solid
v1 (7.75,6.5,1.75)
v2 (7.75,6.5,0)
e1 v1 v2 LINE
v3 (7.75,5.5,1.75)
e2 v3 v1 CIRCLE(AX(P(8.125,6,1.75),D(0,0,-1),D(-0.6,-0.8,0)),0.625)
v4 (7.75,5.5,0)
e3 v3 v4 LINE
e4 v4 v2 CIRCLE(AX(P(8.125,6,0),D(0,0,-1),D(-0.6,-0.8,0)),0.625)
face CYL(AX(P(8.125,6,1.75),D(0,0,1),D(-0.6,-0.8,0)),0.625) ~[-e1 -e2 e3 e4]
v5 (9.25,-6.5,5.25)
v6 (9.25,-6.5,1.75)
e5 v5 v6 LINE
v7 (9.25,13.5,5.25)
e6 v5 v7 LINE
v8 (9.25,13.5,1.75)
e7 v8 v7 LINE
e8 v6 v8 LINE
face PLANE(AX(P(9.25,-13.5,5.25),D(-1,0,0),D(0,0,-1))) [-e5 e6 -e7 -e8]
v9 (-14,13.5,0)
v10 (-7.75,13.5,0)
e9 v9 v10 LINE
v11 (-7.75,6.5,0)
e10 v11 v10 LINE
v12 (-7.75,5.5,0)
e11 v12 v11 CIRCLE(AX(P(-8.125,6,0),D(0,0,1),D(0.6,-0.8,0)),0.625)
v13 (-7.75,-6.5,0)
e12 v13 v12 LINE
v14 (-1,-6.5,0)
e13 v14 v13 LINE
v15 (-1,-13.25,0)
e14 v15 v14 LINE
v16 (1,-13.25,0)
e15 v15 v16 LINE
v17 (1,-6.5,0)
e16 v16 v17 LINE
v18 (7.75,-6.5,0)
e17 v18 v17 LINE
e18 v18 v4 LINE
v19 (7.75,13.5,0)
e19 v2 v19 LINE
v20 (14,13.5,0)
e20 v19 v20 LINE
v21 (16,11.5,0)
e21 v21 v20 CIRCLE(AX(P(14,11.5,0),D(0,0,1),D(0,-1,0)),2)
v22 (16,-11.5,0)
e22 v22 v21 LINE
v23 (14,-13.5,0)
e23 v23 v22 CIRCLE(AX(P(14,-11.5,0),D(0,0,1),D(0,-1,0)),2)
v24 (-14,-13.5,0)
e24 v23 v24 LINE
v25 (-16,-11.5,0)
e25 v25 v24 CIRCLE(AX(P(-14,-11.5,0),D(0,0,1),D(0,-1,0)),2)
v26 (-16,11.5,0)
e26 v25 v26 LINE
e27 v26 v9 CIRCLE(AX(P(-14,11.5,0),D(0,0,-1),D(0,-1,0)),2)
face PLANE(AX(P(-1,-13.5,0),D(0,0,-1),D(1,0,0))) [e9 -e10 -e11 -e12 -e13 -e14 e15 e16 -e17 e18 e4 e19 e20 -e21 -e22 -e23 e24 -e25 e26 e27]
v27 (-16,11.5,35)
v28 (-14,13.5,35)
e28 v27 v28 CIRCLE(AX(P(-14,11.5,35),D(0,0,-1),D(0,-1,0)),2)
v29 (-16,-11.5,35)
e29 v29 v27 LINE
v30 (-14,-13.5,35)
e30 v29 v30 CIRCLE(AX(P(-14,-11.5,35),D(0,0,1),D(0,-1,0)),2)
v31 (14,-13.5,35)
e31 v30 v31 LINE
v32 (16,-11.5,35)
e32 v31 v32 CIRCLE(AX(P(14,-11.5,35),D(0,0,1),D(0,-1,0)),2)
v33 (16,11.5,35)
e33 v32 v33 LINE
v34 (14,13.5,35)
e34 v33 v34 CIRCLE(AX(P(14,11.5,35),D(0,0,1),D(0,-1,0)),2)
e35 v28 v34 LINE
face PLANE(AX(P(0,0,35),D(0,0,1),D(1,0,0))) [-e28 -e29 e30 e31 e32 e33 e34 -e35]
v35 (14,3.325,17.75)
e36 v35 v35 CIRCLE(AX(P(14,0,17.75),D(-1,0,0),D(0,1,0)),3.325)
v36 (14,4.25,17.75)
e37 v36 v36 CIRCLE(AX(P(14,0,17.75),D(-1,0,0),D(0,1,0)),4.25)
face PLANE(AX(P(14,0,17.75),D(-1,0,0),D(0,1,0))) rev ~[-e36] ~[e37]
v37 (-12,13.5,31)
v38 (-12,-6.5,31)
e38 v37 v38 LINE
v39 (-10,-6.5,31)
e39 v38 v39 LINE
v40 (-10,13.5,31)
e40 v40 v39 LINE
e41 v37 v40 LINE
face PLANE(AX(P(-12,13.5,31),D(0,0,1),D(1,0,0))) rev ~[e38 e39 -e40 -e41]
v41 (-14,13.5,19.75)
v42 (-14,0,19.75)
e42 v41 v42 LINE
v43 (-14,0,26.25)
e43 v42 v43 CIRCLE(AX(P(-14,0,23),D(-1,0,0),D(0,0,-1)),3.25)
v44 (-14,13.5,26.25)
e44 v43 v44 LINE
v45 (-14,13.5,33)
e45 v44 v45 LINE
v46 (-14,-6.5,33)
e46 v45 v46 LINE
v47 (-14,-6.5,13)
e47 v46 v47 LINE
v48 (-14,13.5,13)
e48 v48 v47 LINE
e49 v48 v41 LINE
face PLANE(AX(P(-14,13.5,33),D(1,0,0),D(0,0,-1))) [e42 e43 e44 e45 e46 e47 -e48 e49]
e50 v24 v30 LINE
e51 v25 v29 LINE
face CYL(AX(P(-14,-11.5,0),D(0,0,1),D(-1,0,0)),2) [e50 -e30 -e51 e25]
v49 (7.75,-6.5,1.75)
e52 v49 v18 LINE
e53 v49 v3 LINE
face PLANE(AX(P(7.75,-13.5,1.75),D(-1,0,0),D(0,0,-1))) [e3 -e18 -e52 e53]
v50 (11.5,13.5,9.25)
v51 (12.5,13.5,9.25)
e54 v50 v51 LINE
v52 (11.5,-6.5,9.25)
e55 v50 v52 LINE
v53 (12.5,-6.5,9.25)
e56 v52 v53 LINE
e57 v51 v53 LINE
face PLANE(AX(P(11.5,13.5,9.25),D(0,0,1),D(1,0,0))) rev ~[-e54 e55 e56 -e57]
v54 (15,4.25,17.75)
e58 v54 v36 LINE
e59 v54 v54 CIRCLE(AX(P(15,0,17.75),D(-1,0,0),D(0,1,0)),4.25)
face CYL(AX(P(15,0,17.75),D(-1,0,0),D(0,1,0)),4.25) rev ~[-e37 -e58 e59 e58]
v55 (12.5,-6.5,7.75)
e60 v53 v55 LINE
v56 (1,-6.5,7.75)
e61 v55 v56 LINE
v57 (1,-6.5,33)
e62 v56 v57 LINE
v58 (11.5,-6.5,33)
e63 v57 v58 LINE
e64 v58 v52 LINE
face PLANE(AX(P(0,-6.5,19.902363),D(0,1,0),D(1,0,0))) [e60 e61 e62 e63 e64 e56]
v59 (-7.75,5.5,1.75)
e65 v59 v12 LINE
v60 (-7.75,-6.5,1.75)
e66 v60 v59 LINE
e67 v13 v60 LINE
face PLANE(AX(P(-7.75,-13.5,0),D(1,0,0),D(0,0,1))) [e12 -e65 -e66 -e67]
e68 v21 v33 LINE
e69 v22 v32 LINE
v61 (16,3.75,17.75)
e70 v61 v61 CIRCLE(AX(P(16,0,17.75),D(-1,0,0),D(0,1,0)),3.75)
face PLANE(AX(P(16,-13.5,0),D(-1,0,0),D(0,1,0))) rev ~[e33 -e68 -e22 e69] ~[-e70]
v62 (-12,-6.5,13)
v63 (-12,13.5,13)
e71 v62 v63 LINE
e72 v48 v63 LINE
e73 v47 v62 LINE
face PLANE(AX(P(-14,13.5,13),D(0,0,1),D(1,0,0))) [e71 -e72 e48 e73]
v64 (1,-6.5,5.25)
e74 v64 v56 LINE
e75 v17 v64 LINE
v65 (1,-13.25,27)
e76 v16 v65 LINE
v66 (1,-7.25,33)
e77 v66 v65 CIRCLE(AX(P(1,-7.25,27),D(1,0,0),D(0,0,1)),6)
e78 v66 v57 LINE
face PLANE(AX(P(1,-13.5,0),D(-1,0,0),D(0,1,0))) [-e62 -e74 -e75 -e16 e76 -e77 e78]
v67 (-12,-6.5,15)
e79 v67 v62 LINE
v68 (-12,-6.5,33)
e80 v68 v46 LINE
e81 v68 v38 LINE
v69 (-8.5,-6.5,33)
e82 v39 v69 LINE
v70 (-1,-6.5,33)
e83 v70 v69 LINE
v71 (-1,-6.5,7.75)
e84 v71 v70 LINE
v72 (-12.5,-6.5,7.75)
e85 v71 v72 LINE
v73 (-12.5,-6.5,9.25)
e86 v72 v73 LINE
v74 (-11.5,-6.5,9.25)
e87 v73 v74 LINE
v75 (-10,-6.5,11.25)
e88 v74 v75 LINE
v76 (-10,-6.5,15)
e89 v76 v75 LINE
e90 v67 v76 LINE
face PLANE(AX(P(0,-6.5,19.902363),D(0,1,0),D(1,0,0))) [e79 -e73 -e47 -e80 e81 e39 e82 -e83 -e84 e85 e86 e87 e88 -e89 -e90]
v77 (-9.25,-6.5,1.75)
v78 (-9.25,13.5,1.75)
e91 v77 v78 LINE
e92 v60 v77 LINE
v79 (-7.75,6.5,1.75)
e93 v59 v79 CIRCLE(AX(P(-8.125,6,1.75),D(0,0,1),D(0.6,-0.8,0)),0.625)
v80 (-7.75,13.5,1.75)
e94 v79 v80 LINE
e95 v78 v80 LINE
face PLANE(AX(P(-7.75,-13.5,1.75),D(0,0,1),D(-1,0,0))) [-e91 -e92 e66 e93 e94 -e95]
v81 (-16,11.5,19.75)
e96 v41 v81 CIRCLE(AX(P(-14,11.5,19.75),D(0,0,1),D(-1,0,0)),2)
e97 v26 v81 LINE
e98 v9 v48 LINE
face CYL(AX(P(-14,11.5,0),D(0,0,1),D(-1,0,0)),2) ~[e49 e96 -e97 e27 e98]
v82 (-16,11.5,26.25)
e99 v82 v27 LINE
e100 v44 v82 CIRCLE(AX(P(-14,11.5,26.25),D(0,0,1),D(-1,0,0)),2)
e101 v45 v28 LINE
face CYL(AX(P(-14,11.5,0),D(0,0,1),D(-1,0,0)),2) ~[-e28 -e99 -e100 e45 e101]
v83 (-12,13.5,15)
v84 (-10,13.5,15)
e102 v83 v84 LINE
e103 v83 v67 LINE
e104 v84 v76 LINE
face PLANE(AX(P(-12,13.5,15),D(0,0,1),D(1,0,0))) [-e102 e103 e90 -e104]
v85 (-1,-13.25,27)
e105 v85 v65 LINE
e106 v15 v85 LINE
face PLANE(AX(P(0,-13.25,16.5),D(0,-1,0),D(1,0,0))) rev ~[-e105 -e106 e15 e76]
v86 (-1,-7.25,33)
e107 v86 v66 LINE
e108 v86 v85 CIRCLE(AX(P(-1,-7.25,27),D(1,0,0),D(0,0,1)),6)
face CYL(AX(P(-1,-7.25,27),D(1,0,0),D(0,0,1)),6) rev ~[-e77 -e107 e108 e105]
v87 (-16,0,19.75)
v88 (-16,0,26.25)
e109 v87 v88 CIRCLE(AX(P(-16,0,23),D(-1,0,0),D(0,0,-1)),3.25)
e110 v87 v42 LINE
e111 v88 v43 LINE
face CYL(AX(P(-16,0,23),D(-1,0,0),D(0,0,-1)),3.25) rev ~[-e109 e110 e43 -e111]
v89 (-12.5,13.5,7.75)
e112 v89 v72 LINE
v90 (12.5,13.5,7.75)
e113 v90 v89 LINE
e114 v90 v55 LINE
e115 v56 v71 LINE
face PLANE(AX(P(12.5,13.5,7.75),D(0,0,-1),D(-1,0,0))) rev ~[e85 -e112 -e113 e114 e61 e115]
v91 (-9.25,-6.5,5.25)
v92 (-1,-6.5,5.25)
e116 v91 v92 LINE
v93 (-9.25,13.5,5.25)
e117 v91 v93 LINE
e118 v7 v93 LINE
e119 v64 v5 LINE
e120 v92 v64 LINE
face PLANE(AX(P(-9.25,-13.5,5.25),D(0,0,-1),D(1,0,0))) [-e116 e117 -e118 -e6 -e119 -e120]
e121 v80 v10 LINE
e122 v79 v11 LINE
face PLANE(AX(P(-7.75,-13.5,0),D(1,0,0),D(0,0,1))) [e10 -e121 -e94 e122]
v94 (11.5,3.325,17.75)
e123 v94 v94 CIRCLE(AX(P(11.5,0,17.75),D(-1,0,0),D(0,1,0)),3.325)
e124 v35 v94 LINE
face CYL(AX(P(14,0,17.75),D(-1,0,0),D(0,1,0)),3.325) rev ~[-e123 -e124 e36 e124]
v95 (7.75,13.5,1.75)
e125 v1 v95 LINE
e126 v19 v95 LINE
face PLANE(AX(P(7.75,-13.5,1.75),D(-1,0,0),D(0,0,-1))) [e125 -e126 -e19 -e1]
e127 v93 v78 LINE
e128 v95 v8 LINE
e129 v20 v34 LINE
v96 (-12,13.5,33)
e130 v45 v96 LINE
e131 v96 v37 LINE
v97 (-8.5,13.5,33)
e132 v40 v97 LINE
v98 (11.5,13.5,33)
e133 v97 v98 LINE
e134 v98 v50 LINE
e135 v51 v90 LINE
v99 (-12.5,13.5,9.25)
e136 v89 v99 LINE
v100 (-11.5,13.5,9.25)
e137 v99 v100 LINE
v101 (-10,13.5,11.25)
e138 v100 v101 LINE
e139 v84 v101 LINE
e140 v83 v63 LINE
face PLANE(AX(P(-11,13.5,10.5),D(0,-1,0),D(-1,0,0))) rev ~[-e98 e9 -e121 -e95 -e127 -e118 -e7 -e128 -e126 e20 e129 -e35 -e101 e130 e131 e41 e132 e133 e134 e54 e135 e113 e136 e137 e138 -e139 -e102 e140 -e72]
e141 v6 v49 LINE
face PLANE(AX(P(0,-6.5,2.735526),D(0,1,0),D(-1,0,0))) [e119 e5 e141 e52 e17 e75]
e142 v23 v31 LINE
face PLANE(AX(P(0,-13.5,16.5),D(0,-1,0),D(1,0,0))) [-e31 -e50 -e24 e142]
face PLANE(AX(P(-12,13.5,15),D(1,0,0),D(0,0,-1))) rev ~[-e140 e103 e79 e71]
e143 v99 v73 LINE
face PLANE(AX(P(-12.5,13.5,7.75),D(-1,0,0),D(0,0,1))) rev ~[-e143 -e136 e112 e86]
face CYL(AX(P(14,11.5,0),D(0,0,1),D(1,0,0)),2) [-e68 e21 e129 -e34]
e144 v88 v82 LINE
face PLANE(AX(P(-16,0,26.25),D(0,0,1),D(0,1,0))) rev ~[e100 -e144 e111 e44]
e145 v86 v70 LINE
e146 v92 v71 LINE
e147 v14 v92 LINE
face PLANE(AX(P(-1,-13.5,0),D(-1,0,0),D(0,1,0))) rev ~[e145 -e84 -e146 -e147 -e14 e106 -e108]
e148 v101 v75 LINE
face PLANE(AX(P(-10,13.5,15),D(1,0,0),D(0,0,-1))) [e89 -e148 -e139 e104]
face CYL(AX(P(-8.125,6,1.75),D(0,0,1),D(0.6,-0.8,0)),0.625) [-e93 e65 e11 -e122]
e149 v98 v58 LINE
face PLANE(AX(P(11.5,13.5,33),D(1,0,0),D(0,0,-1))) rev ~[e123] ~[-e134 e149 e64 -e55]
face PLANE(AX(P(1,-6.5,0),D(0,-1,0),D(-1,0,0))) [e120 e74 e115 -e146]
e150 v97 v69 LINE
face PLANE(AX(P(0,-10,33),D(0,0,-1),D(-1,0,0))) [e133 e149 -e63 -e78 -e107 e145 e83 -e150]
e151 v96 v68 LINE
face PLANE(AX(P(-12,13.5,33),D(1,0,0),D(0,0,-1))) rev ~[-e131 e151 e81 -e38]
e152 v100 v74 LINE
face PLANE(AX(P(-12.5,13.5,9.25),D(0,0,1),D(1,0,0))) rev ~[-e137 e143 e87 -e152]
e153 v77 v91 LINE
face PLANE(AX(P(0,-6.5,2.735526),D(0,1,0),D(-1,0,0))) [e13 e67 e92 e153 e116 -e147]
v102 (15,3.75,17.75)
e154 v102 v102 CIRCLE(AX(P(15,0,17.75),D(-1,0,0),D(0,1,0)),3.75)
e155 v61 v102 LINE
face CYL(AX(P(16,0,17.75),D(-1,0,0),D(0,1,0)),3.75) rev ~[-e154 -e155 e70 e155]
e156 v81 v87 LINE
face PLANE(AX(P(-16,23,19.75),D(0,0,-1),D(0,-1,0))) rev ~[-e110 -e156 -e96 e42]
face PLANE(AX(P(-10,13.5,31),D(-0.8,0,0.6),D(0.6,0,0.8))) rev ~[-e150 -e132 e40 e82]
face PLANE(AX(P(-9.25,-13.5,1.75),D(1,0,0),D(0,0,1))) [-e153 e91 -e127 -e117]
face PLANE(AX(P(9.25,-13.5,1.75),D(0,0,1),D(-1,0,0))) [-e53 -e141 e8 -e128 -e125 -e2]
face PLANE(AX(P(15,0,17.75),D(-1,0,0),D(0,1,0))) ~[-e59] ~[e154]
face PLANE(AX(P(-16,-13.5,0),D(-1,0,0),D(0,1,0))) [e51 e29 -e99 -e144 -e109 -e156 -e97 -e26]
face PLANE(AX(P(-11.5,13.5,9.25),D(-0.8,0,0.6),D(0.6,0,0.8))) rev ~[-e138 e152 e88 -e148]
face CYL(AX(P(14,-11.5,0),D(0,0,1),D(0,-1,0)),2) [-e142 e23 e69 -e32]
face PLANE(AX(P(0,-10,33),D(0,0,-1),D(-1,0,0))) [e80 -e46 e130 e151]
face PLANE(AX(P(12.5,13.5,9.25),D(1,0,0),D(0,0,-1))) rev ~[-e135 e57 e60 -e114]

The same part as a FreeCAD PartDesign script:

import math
import FreeCAD as App
import Part
import Sketcher


def edges_at(feature, points):
    """Names of the edges that pass closest to the given points."""
    edges = feature.Shape.Edges
    near = lambda p: min(range(len(edges)), key=lambda i: edges[i].distToShape(Part.Vertex(*p))[0])
    return sorted({f"Edge{near(p) + 1}" for p in points})

doc = App.newDocument("Part")
params = doc.addObject("Spreadsheet::Sheet", "Params")
for row, (alias, value) in enumerate([
    ("sketch1_width", "32 mm"),
    ("sketch1_height", "27 mm"),
    ("pad1_length", "35 mm"),
    ("fillet_radius", "2 mm"),
    ("sketch2_width", "15.5 mm"),
    ("sketch2_width2", "1.5 mm"),
    ("sketch2_height", "3.5 mm"),
    ("sketch2_height2", "1.75 mm"),
    ("sketch3_width", "15.5 mm"),
    ("sketch3_width2", "1.5 mm"),
    ("sketch3_height", "3.5 mm"),
    ("sketch3_height2", "1.75 mm"),
    ("pad2_length", "7 mm"),
    ("sketch4_height", "1 mm"),
    ("pad3_length", "1.75 mm"),
    ("sketch5_width", "2 mm"),
    ("sketch5_height", "7 mm"),
    ("pocket2_length", "33 mm"),
    ("sketch6_width", "1 mm"),
    ("sketch6_width2", "23 mm"),
    ("sketch6_height", "1.5 mm"),
    ("sketch6_height2", "23.75 mm"),
    ("pocket3_length", "20 mm"),
    ("sketch7_width", "2 mm"),
    ("sketch7_height", "33 mm"),
    ("pad4_length", "0.25 mm"),
    ("fillet2_radius", "6 mm"),
    ("sketch8_width", "1 mm"),
    ("sketch8_width2", "4.5 mm"),
    ("sketch8_height", "0.5 mm"),
    ("sketch8_height2", "3.75 mm"),
    ("groove_angle", "360 deg"),
    ("sketch9_width", "23 mm"),
    ("sketch9_radius", "3.25 mm"),
    ("pocket4_length", "4.5 mm"),
    ("sketch10_height", "20 mm"),
    ("sketch10_width", "2.5 mm"),
    ("pocket5_length", "20 mm"),
    ("sketch11_width", "2 mm"),
    ("sketch11_height", "3.75 mm"),
    ("pad5_length", "20 mm"),
    ("sketch12_height", "2 mm"),
    ("sketch12_width", "1.5 mm"),
    ("pad6_length", "20 mm"),
], start=1):
    params.set(f"A{row}", alias)
    params.set(f"B{row}", "=" + value)
    params.setAlias(f"B{row}", alias)

body = doc.addObject("PartDesign::Body", "Body")

# Sketch on XY plane
sketch1 = body.newObject("Sketcher::SketchObject", "Sketch")
sketch1.AttachmentSupport = (doc.getObject("XY_Plane"), [""])
sketch1.MapMode = "FlatFace"
sketch1.addGeometry([
    Part.LineSegment(App.Vector(-16, 14, 0), App.Vector(-16, -14, 0)),
    Part.LineSegment(App.Vector(-16, -14, 0), App.Vector(16, -14, 0)),
    Part.LineSegment(App.Vector(16, -14, 0), App.Vector(16, 14, 0)),
    Part.LineSegment(App.Vector(16, 14, 0), App.Vector(-16, 14, 0)),
], False)
sketch1.addConstraint([
    Sketcher.Constraint("Coincident", 0, 2, 1, 1),
    Sketcher.Constraint("Coincident", 1, 2, 2, 1),
    Sketcher.Constraint("Coincident", 2, 2, 3, 1),
    Sketcher.Constraint("Coincident", 3, 2, 0, 1),
    Sketcher.Constraint("Vertical", 0),
    Sketcher.Constraint("Horizontal", 1),
    Sketcher.Constraint("Vertical", 2),
    Sketcher.Constraint("Horizontal", 3),
    Sketcher.Constraint("Symmetric", 0, 2, 2, 2, -1, 1),
    Sketcher.Constraint("DistanceX", 1, 1, 1, 2, 32.0),
    Sketcher.Constraint("DistanceY", 0, 2, 0, 1, 27.0),
])
sketch1.setExpression("Constraints[9]", "Params.sketch1_width")
sketch1.setExpression("Constraints[10]", "Params.sketch1_height")
pad1 = body.newObject("PartDesign::Pad", "Pad")
pad1.Profile = sketch1
pad1.setExpression("Length", "Params.pad1_length")
doc.recompute()

fillet = body.newObject("PartDesign::Fillet", "Fillet")
fillet.Base = (pad1, edges_at(pad1, [
    (16, -13.5, 17.5),
    (-16, -13.5, 17.5),
    (-16, 13.5, 17.5),
    (16, 13.5, 17.5),
]))
fillet.setExpression("Radius", "Params.fillet_radius")

# Sketch on XZ plane
sketch2 = body.newObject("Sketcher::SketchObject", "Sketch001")
sketch2.AttachmentSupport = (doc.getObject("XZ_Plane"), [""])
sketch2.MapMode = "FlatFace"
sketch2.AttachmentOffset = App.Placement(App.Vector(0, 0, 13.5), App.Rotation())
sketch2.addGeometry([
    Part.LineSegment(App.Vector(-7.8, 1.8, 0), App.Vector(-7.8, 0, 0)),  # 0
    Part.LineSegment(App.Vector(-7.8, 0, 0), App.Vector(7.8, 0, 0)),  # 1
    Part.LineSegment(App.Vector(7.8, 0, 0), App.Vector(7.8, 1.8, 0)),  # 2
    Part.LineSegment(App.Vector(7.8, 1.8, 0), App.Vector(9.2, 1.8, 0)),  # 3
    Part.LineSegment(App.Vector(9.2, 1.8, 0), App.Vector(9.2, 5.2, 0)),  # 4
    Part.LineSegment(App.Vector(9.2, 5.2, 0), App.Vector(-9.2, 5.2, 0)),  # 5
    Part.LineSegment(App.Vector(-9.2, 5.2, 0), App.Vector(-9.2, 1.8, 0)),  # 6
    Part.LineSegment(App.Vector(-9.2, 1.8, 0), App.Vector(-7.8, 1.8, 0)),  # 7
], False)
sketch2.addConstraint([
    Sketcher.Constraint("Coincident", 0, 2, 1, 1),
    Sketcher.Constraint("Coincident", 1, 2, 2, 1),
    Sketcher.Constraint("Coincident", 2, 2, 3, 1),
    Sketcher.Constraint("Coincident", 3, 2, 4, 1),
    Sketcher.Constraint("Coincident", 4, 2, 5, 1),
    Sketcher.Constraint("Coincident", 5, 2, 6, 1),
    Sketcher.Constraint("Coincident", 6, 2, 7, 1),
    Sketcher.Constraint("Coincident", 7, 2, 0, 1),
    Sketcher.Constraint("Vertical", 0),
    Sketcher.Constraint("Horizontal", 1),
    Sketcher.Constraint("Vertical", 2),
    Sketcher.Constraint("Horizontal", 3),
    Sketcher.Constraint("Vertical", 4),
    Sketcher.Constraint("Horizontal", 5),
    Sketcher.Constraint("Vertical", 6),
    Sketcher.Constraint("Horizontal", 7),
    Sketcher.Constraint("Symmetric", 0, 2, 1, 2, -1, 1),
    Sketcher.Constraint("Symmetric", 3, 2, 6, 2, -2),
    Sketcher.Constraint("DistanceX", 1, 1, 1, 2, 15.5),
    Sketcher.Constraint("DistanceX", 3, 1, 3, 2, 1.5),
    Sketcher.Constraint("DistanceY", 4, 1, 4, 2, 3.5),
    Sketcher.Constraint("DistanceY", 0, 2, 0, 1, 1.75),
])
sketch2.setExpression("Constraints[18]", "Params.sketch2_width")
sketch2.setExpression("Constraints[19]", "Params.sketch2_width2")
sketch2.setExpression("Constraints[20]", "Params.sketch2_height")
sketch2.setExpression("Constraints[21]", "Params.sketch2_height2")
pocket1 = body.newObject("PartDesign::Pocket", "Pocket")
pocket1.Profile = sketch2
pocket1.Type = "ThroughAll"
pocket1.Midplane = True

# Sketch on XZ plane
sketch3 = body.newObject("Sketcher::SketchObject", "Sketch002")
sketch3.AttachmentSupport = (doc.getObject("XZ_Plane"), [""])
sketch3.MapMode = "FlatFace"
sketch3.AttachmentOffset = App.Placement(App.Vector(0, 0, 13.5), App.Rotation())
sketch3.addGeometry([
    Part.LineSegment(App.Vector(-7.8, 1.8, 0), App.Vector(-7.8, 0, 0)),  # 0
    Part.LineSegment(App.Vector(-7.8, 0, 0), App.Vector(7.8, 0, 0)),  # 1
    Part.LineSegment(App.Vector(7.8, 0, 0), App.Vector(7.8, 1.8, 0)),  # 2
    Part.LineSegment(App.Vector(7.8, 1.8, 0), App.Vector(9.2, 1.8, 0)),  # 3
    Part.LineSegment(App.Vector(9.2, 1.8, 0), App.Vector(9.2, 5.2, 0)),  # 4
    Part.LineSegment(App.Vector(9.2, 5.2, 0), App.Vector(-9.2, 5.2, 0)),  # 5
    Part.LineSegment(App.Vector(-9.2, 5.2, 0), App.Vector(-9.2, 1.8, 0)),  # 6
    Part.LineSegment(App.Vector(-9.2, 1.8, 0), App.Vector(-7.8, 1.8, 0)),  # 7
], False)
sketch3.addConstraint([
    Sketcher.Constraint("Coincident", 0, 2, 1, 1),
    Sketcher.Constraint("Coincident", 1, 2, 2, 1),
    Sketcher.Constraint("Coincident", 2, 2, 3, 1),
    Sketcher.Constraint("Coincident", 3, 2, 4, 1),
    Sketcher.Constraint("Coincident", 4, 2, 5, 1),
    Sketcher.Constraint("Coincident", 5, 2, 6, 1),
    Sketcher.Constraint("Coincident", 6, 2, 7, 1),
    Sketcher.Constraint("Coincident", 7, 2, 0, 1),
    Sketcher.Constraint("Vertical", 0),
    Sketcher.Constraint("Horizontal", 1),
    Sketcher.Constraint("Vertical", 2),
    Sketcher.Constraint("Horizontal", 3),
    Sketcher.Constraint("Vertical", 4),
    Sketcher.Constraint("Horizontal", 5),
    Sketcher.Constraint("Vertical", 6),
    Sketcher.Constraint("Horizontal", 7),
    Sketcher.Constraint("Symmetric", 0, 2, 1, 2, -1, 1),
    Sketcher.Constraint("Symmetric", 3, 2, 6, 2, -2),
    Sketcher.Constraint("DistanceX", 1, 1, 1, 2, 15.5),
    Sketcher.Constraint("DistanceX", 3, 1, 3, 2, 1.5),
    Sketcher.Constraint("DistanceY", 4, 1, 4, 2, 3.5),
    Sketcher.Constraint("DistanceY", 0, 2, 0, 1, 1.75),
])
sketch3.setExpression("Constraints[18]", "Params.sketch3_width")
sketch3.setExpression("Constraints[19]", "Params.sketch3_width2")
sketch3.setExpression("Constraints[20]", "Params.sketch3_height")
sketch3.setExpression("Constraints[21]", "Params.sketch3_height2")
pad2 = body.newObject("PartDesign::Pad", "Pad001")
pad2.Profile = sketch3
pad2.setExpression("Length", "Params.pad2_length")
pad2.Reversed = True

# Sketch on XY plane
sketch4 = body.newObject("Sketcher::SketchObject", "Sketch003")
sketch4.AttachmentSupport = (doc.getObject("XY_Plane"), [""])
sketch4.MapMode = "FlatFace"
sketch4.AttachmentOffset = App.Placement(App.Vector(0, 0, 1.75), App.Rotation())
sketch4.addGeometry([
    Part.LineSegment(App.Vector(7.8, 6.5, 0), App.Vector(7.8, 5.5, 0)),
    Part.ArcOfCircle(Part.Circle(App.Vector(8.1, 6, 0), App.Vector(0, 0, 1), 0.6), math.radians(127), math.radians(233)),
], False)
sketch4.addConstraint([
    Sketcher.Constraint("Coincident", 0, 1, 1, 1),
    Sketcher.Constraint("Coincident", 1, 2, 0, 2),
    Sketcher.Constraint("Vertical", 0),
    Sketcher.Constraint("DistanceY", 0, 2, 0, 1, 1.0),
    Sketcher.Constraint("DistanceY", -1, 1, 1, 3, 6.0),
    Sketcher.Constraint("Radius", 1, 0.625),
    Sketcher.Constraint("DistanceX", -1, 1, 0, 1, 7.75),
])
sketch4.setExpression("Constraints[3]", "Params.sketch4_height")
pad3 = body.newObject("PartDesign::Pad", "Pad002")
pad3.Profile = sketch4
pad3.setExpression("Length", "Params.pad3_length")
pad3.Reversed = True
doc.recompute()

mirrored = body.newObject("PartDesign::Mirrored", "Mirrored")
mirrored.Originals = [pad3]
mirrored.MirrorPlane = (doc.getObject("YZ_Plane"), [""])
body.Tip = mirrored

# Sketch on XY plane
sketch5 = body.newObject("Sketcher::SketchObject", "Sketch004")
sketch5.AttachmentSupport = (doc.getObject("XY_Plane"), [""])
sketch5.MapMode = "FlatFace"
sketch5.addGeometry([
    Part.LineSegment(App.Vector(1, -6.5, 0), App.Vector(1, -13.5, 0)),
    Part.LineSegment(App.Vector(1, -13.5, 0), App.Vector(-1, -13.5, 0)),
    Part.LineSegment(App.Vector(-1, -13.5, 0), App.Vector(-1, -6.5, 0)),
    Part.LineSegment(App.Vector(-1, -6.5, 0), App.Vector(1, -6.5, 0)),
], False)
sketch5.addConstraint([
    Sketcher.Constraint("Coincident", 0, 2, 1, 1),
    Sketcher.Constraint("Coincident", 1, 2, 2, 1),
    Sketcher.Constraint("Coincident", 2, 2, 3, 1),
    Sketcher.Constraint("Coincident", 3, 2, 0, 1),
    Sketcher.Constraint("Vertical", 0),
    Sketcher.Constraint("Horizontal", 1),
    Sketcher.Constraint("Vertical", 2),
    Sketcher.Constraint("Horizontal", 3),
    Sketcher.Constraint("DistanceX", 1, 2, 1, 1, 2.0),
    Sketcher.Constraint("DistanceY", 0, 2, 0, 1, 7.0),
    Sketcher.Constraint("DistanceX", -1, 1, 0, 2, 1.0),
    Sketcher.Constraint("DistanceY", 0, 2, -1, 1, 13.5),
])
sketch5.setExpression("Constraints[8]", "Params.sketch5_width")
sketch5.setExpression("Constraints[9]", "Params.sketch5_height")
pocket2 = body.newObject("PartDesign::Pocket", "Pocket001")
pocket2.Profile = sketch5
pocket2.setExpression("Length", "Params.pocket2_length")
pocket2.Reversed = True

# Sketch on XZ plane
sketch6 = body.newObject("Sketcher::SketchObject", "Sketch005")
sketch6.AttachmentSupport = (doc.getObject("XZ_Plane"), [""])
sketch6.MapMode = "FlatFace"
sketch6.AttachmentOffset = App.Placement(App.Vector(0, 0, -13.5), App.Rotation())
sketch6.addGeometry([
    Part.LineSegment(App.Vector(-12.5, 7.8, 0), App.Vector(-12.5, 9.2, 0)),  # 0
    Part.LineSegment(App.Vector(-12.5, 9.2, 0), App.Vector(-11.5, 9.2, 0)),  # 1
    Part.LineSegment(App.Vector(-11.5, 9.2, 0), App.Vector(-11.5, 33, 0)),  # 2
    Part.LineSegment(App.Vector(-11.5, 33, 0), App.Vector(11.5, 33, 0)),  # 3
    Part.LineSegment(App.Vector(11.5, 33, 0), App.Vector(11.5, 9.2, 0)),  # 4
    Part.LineSegment(App.Vector(11.5, 9.2, 0), App.Vector(12.5, 9.2, 0)),  # 5
    Part.LineSegment(App.Vector(12.5, 9.2, 0), App.Vector(12.5, 7.8, 0)),  # 6
    Part.LineSegment(App.Vector(12.5, 7.8, 0), App.Vector(-12.5, 7.8, 0)),  # 7
], False)
sketch6.addConstraint([
    Sketcher.Constraint("Coincident", 0, 2, 1, 1),
    Sketcher.Constraint("Coincident", 1, 2, 2, 1),
    Sketcher.Constraint("Coincident", 2, 2, 3, 1),
    Sketcher.Constraint("Coincident", 3, 2, 4, 1),
    Sketcher.Constraint("Coincident", 4, 2, 5, 1),
    Sketcher.Constraint("Coincident", 5, 2, 6, 1),
    Sketcher.Constraint("Coincident", 6, 2, 7, 1),
    Sketcher.Constraint("Coincident", 7, 2, 0, 1),
    Sketcher.Constraint("Vertical", 0),
    Sketcher.Constraint("Horizontal", 1),
    Sketcher.Constraint("Vertical", 2),
    Sketcher.Constraint("Horizontal", 3),
    Sketcher.Constraint("Vertical", 4),
    Sketcher.Constraint("Horizontal", 5),
    Sketcher.Constraint("Vertical", 6),
    Sketcher.Constraint("Horizontal", 7),
    Sketcher.Constraint("Symmetric", 1, 2, 4, 2, -2),
    Sketcher.Constraint("Equal", 1, 5),
    Sketcher.Constraint("DistanceX", 1, 1, 1, 2, 1.0),
    Sketcher.Constraint("DistanceX", 3, 1, 3, 2, 23.0),
    Sketcher.Constraint("DistanceY", 0, 1, 0, 2, 1.5),
    Sketcher.Constraint("DistanceY", -1, 1, 2, 2, 33.0),
    Sketcher.Constraint("DistanceY", 2, 1, 2, 2, 23.75),
])
sketch6.setExpression("Constraints[18]", "Params.sketch6_width")
sketch6.setExpression("Constraints[19]", "Params.sketch6_width2")
sketch6.setExpression("Constraints[20]", "Params.sketch6_height")
sketch6.setExpression("Constraints[22]", "Params.sketch6_height2")
pocket3 = body.newObject("PartDesign::Pocket", "Pocket002")
pocket3.Profile = sketch6
pocket3.setExpression("Length", "Params.pocket3_length")
pocket3.Reversed = True

# Sketch on XZ plane
sketch7 = body.newObject("Sketcher::SketchObject", "Sketch006")
sketch7.AttachmentSupport = (doc.getObject("XZ_Plane"), [""])
sketch7.MapMode = "FlatFace"
sketch7.AttachmentOffset = App.Placement(App.Vector(0, 0, 13.5), App.Rotation())
sketch7.addGeometry([
    Part.LineSegment(App.Vector(-1, 33, 0), App.Vector(-1, 0, 0)),
    Part.LineSegment(App.Vector(-1, 0, 0), App.Vector(1, 0, 0)),
    Part.LineSegment(App.Vector(1, 0, 0), App.Vector(1, 33, 0)),
    Part.LineSegment(App.Vector(1, 33, 0), App.Vector(-1, 33, 0)),
], False)
sketch7.addConstraint([
    Sketcher.Constraint("Coincident", 0, 2, 1, 1),
    Sketcher.Constraint("Coincident", 1, 2, 2, 1),
    Sketcher.Constraint("Coincident", 2, 2, 3, 1),
    Sketcher.Constraint("Coincident", 3, 2, 0, 1),
    Sketcher.Constraint("Vertical", 0),
    Sketcher.Constraint("Horizontal", 1),
    Sketcher.Constraint("Vertical", 2),
    Sketcher.Constraint("Horizontal", 3),
    Sketcher.Constraint("Symmetric", 0, 2, 1, 2, -1, 1),
    Sketcher.Constraint("DistanceX", 1, 1, 1, 2, 2.0),
    Sketcher.Constraint("DistanceY", 0, 2, 0, 1, 33.0),
])
sketch7.setExpression("Constraints[9]", "Params.sketch7_width")
sketch7.setExpression("Constraints[10]", "Params.sketch7_height")
pad4 = body.newObject("PartDesign::Pad", "Pad003")
pad4.Profile = sketch7
pad4.setExpression("Length", "Params.pad4_length")
pad4.Reversed = True
doc.recompute()

fillet2 = body.newObject("PartDesign::Fillet", "Fillet001")
fillet2.Base = (pad4, edges_at(pad4, [(0, -13.25, 33)]))
fillet2.setExpression("Radius", "Params.fillet2_radius")

# Sketch on XY plane
sketch8 = body.newObject("Sketcher::SketchObject", "Sketch007")
sketch8.AttachmentSupport = (doc.getObject("XY_Plane"), [""])
sketch8.MapMode = "FlatFace"
sketch8.AttachmentOffset = App.Placement(App.Vector(0, 0, 17.75), App.Rotation())
sketch8.addGeometry([
    Part.LineSegment(App.Vector(14, 4.2, 0), App.Vector(15, 4.2, 0)),  # 0
    Part.LineSegment(App.Vector(15, 4.2, 0), App.Vector(15, 3.8, 0)),  # 1
    Part.LineSegment(App.Vector(15, 3.8, 0), App.Vector(16, 3.8, 0)),  # 2
    Part.LineSegment(App.Vector(16, 3.8, 0), App.Vector(16, 0, 0)),  # 3
    Part.LineSegment(App.Vector(16, 0, 0), App.Vector(11.5, 0, 0)),  # 4
    Part.LineSegment(App.Vector(11.5, 0, 0), App.Vector(11.5, 3.3, 0)),  # 5
    Part.LineSegment(App.Vector(11.5, 3.3, 0), App.Vector(14, 3.3, 0)),  # 6
    Part.LineSegment(App.Vector(14, 3.3, 0), App.Vector(14, 4.2, 0)),  # 7
], False)
sketch8.addConstraint([
    Sketcher.Constraint("Coincident", 0, 2, 1, 1),
    Sketcher.Constraint("Coincident", 1, 2, 2, 1),
    Sketcher.Constraint("Coincident", 2, 2, 3, 1),
    Sketcher.Constraint("Coincident", 3, 2, 4, 1),
    Sketcher.Constraint("Coincident", 4, 2, 5, 1),
    Sketcher.Constraint("Coincident", 5, 2, 6, 1),
    Sketcher.Constraint("Coincident", 6, 2, 7, 1),
    Sketcher.Constraint("Coincident", 7, 2, 0, 1),
    Sketcher.Constraint("Horizontal", 0),
    Sketcher.Constraint("Vertical", 1),
    Sketcher.Constraint("Horizontal", 2),
    Sketcher.Constraint("Vertical", 3),
    Sketcher.Constraint("Horizontal", 4),
    Sketcher.Constraint("Vertical", 5),
    Sketcher.Constraint("Horizontal", 6),
    Sketcher.Constraint("Vertical", 7),
    Sketcher.Constraint("PointOnObject", 3, 2, -1),
    Sketcher.Constraint("Equal", 0, 2),
    Sketcher.Constraint("DistanceX", 0, 1, 0, 2, 1.0),
    Sketcher.Constraint("DistanceX", 4, 2, 4, 1, 4.5),
    Sketcher.Constraint("DistanceY", 1, 2, 1, 1, 0.5),
    Sketcher.Constraint("DistanceX", -1, 1, 0, 2, 15.0),
    Sketcher.Constraint("DistanceY", 3, 2, 3, 1, 3.75),
    Sketcher.Constraint("DistanceY", 5, 1, 5, 2, 3.325),
])
sketch8.setExpression("Constraints[18]", "Params.sketch8_width")
sketch8.setExpression("Constraints[19]", "Params.sketch8_width2")
sketch8.setExpression("Constraints[20]", "Params.sketch8_height")
sketch8.setExpression("Constraints[22]", "Params.sketch8_height2")
groove = body.newObject("PartDesign::Groove", "Groove")
groove.Profile = sketch8
groove.ReferenceAxis = (sketch8, ["H_Axis"])
groove.setExpression("Angle", "Params.groove_angle")

# Sketch on YZ plane
sketch9 = body.newObject("Sketcher::SketchObject", "Sketch008")
sketch9.AttachmentSupport = (doc.getObject("YZ_Plane"), [""])
sketch9.MapMode = "FlatFace"
sketch9.AttachmentOffset = App.Placement(App.Vector(0, 0, -16), App.Rotation())
sketch9.addGeometry([
    Part.LineSegment(App.Vector(0, 19.8, 0), App.Vector(23, 19.8, 0)),
    Part.ArcOfCircle(Part.Circle(App.Vector(23, 23, 0), App.Vector(0, 0, 1), 3.2), math.radians(-90), math.radians(90)),
    Part.LineSegment(App.Vector(23, 26.2, 0), App.Vector(0, 26.2, 0)),
    Part.ArcOfCircle(Part.Circle(App.Vector(0, 23, 0), App.Vector(0, 0, 1), 3.2), math.radians(90), math.radians(270)),
], False)
sketch9.addConstraint([
    Sketcher.Constraint("Tangent", 0, 2, 1, 1),
    Sketcher.Constraint("Tangent", 1, 2, 2, 1),
    Sketcher.Constraint("Tangent", 2, 2, 3, 1),
    Sketcher.Constraint("Tangent", 3, 2, 0, 1),
    Sketcher.Constraint("Horizontal", 0),
    Sketcher.Constraint("Horizontal", 2),
    Sketcher.Constraint("PointOnObject", 3, 3, -2),
    Sketcher.Constraint("DistanceX", 0, 1, 0, 2, 23.0),
    Sketcher.Constraint("Radius", 1, 3.25),
    Sketcher.Constraint("DistanceY", -1, 1, 1, 3, 23.0),
])
sketch9.setExpression("Constraints[7]", "Params.sketch9_width")
sketch9.setExpression("Constraints[8]", "Params.sketch9_radius")
pocket4 = body.newObject("PartDesign::Pocket", "Pocket003")
pocket4.Profile = sketch9
pocket4.setExpression("Length", "Params.pocket4_length")
pocket4.Reversed = True

# Sketch on XZ plane
sketch10 = body.newObject("Sketcher::SketchObject", "Sketch009")
sketch10.AttachmentSupport = (doc.getObject("XZ_Plane"), [""])
sketch10.MapMode = "FlatFace"
sketch10.AttachmentOffset = App.Placement(App.Vector(0, 0, -13.5), App.Rotation())
sketch10.addGeometry([
    Part.LineSegment(App.Vector(-14, 13, 0), App.Vector(-14, 33, 0)),
    Part.LineSegment(App.Vector(-14, 33, 0), App.Vector(-11.5, 33, 0)),
    Part.LineSegment(App.Vector(-11.5, 33, 0), App.Vector(-11.5, 13, 0)),
    Part.LineSegment(App.Vector(-11.5, 13, 0), App.Vector(-14, 13, 0)),
], False)
sketch10.addConstraint([
    Sketcher.Constraint("Coincident", 0, 2, 1, 1),
    Sketcher.Constraint("Coincident", 1, 2, 2, 1),
    Sketcher.Constraint("Coincident", 2, 2, 3, 1),
    Sketcher.Constraint("Coincident", 3, 2, 0, 1),
    Sketcher.Constraint("Vertical", 0),
    Sketcher.Constraint("Horizontal", 1),
    Sketcher.Constraint("Vertical", 2),
    Sketcher.Constraint("Horizontal", 3),
    Sketcher.Constraint("DistanceY", 0, 1, 0, 2, 20.0),
    Sketcher.Constraint("DistanceX", 1, 1, 1, 2, 2.5),
    Sketcher.Constraint("DistanceX", 0, 2, -1, 1, 14.0),
    Sketcher.Constraint("DistanceY", -1, 1, 0, 2, 33.0),
])
sketch10.setExpression("Constraints[8]", "Params.sketch10_height")
sketch10.setExpression("Constraints[9]", "Params.sketch10_width")
pocket5 = body.newObject("PartDesign::Pocket", "Pocket004")
pocket5.Profile = sketch10
pocket5.setExpression("Length", "Params.pocket5_length")
pocket5.Reversed = True

# Sketch on XZ plane
sketch11 = body.newObject("Sketcher::SketchObject", "Sketch010")
sketch11.AttachmentSupport = (doc.getObject("XZ_Plane"), [""])
sketch11.MapMode = "FlatFace"
sketch11.AttachmentOffset = App.Placement(App.Vector(0, 0, -13.5), App.Rotation())
sketch11.addGeometry([
    Part.LineSegment(App.Vector(-12, 11.2, 0), App.Vector(-12, 15, 0)),  # 0
    Part.LineSegment(App.Vector(-12, 15, 0), App.Vector(-10, 15, 0)),  # 1
    Part.LineSegment(App.Vector(-10, 15, 0), App.Vector(-10, 11.2, 0)),  # 2
    Part.LineSegment(App.Vector(-10, 11.2, 0), App.Vector(-12, 11.2, 0)),  # 3
    Part.LineSegment(App.Vector(-12, 31, 0), App.Vector(-12, 33, 0)),  # 4
    Part.LineSegment(App.Vector(-12, 33, 0), App.Vector(-10, 33, 0)),  # 5
    Part.LineSegment(App.Vector(-10, 33, 0), App.Vector(-10, 31, 0)),  # 6
    Part.LineSegment(App.Vector(-10, 31, 0), App.Vector(-12, 31, 0)),  # 7
], False)
sketch11.addConstraint([
    Sketcher.Constraint("Coincident", 0, 2, 1, 1),
    Sketcher.Constraint("Coincident", 1, 2, 2, 1),
    Sketcher.Constraint("Coincident", 2, 2, 3, 1),
    Sketcher.Constraint("Coincident", 3, 2, 0, 1),
    Sketcher.Constraint("Coincident", 4, 2, 5, 1),
    Sketcher.Constraint("Coincident", 5, 2, 6, 1),
    Sketcher.Constraint("Coincident", 6, 2, 7, 1),
    Sketcher.Constraint("Coincident", 7, 2, 4, 1),
    Sketcher.Constraint("Vertical", 0),
    Sketcher.Constraint("Horizontal", 1),
    Sketcher.Constraint("Vertical", 2),
    Sketcher.Constraint("Horizontal", 3),
    Sketcher.Constraint("Vertical", 4),
    Sketcher.Constraint("Horizontal", 5),
    Sketcher.Constraint("Vertical", 6),
    Sketcher.Constraint("Horizontal", 7),
    Sketcher.Constraint("Vertical", 3, 2, 4, 2),
    Sketcher.Constraint("Vertical", 2, 2, 5, 2),
    Sketcher.Constraint("Equal", 7, 4),
    Sketcher.Constraint("DistanceX", 1, 1, 1, 2, 2.0),
    Sketcher.Constraint("DistanceX", 0, 2, -1, 1, 12.0),
    Sketcher.Constraint("DistanceY", -1, 1, 0, 2, 15.0),
    Sketcher.Constraint("DistanceY", -1, 1, 4, 2, 33.0),
    Sketcher.Constraint("DistanceY", 0, 1, 0, 2, 3.75),
])
sketch11.setExpression("Constraints[19]", "Params.sketch11_width")
sketch11.setExpression("Constraints[23]", "Params.sketch11_height")
pad5 = body.newObject("PartDesign::Pad", "Pad004")
pad5.Profile = sketch11
pad5.setExpression("Length", "Params.pad5_length")

# Sketch on XZ plane
sketch12 = body.newObject("Sketcher::SketchObject", "Sketch011")
sketch12.AttachmentSupport = (doc.getObject("XZ_Plane"), [""])
sketch12.MapMode = "FlatFace"
sketch12.AttachmentOffset = App.Placement(App.Vector(0, 0, -13.5), App.Rotation())
sketch12.addGeometry([
    Part.LineSegment(App.Vector(-10, 11.2, 0), App.Vector(-11.5, 9.2, 0)),  # 0
    Part.LineSegment(App.Vector(-11.5, 9.2, 0), App.Vector(-11.5, 11.2, 0)),  # 1
    Part.LineSegment(App.Vector(-11.5, 11.2, 0), App.Vector(-10, 11.2, 0)),  # 2
    Part.LineSegment(App.Vector(-8.5, 33, 0), App.Vector(-10, 31, 0)),  # 3
    Part.LineSegment(App.Vector(-10, 31, 0), App.Vector(-10, 33, 0)),  # 4
    Part.LineSegment(App.Vector(-10, 33, 0), App.Vector(-8.5, 33, 0)),  # 5
], False)
sketch12.addConstraint([
    Sketcher.Constraint("Coincident", 0, 2, 1, 1),
    Sketcher.Constraint("Coincident", 1, 2, 2, 1),
    Sketcher.Constraint("Coincident", 2, 2, 0, 1),
    Sketcher.Constraint("Coincident", 3, 2, 4, 1),
    Sketcher.Constraint("Coincident", 4, 2, 5, 1),
    Sketcher.Constraint("Coincident", 5, 2, 3, 1),
    Sketcher.Constraint("Vertical", 1),
    Sketcher.Constraint("Horizontal", 2),
    Sketcher.Constraint("Vertical", 4),
    Sketcher.Constraint("Horizontal", 5),
    Sketcher.Constraint("Parallel", 0, 3),
    Sketcher.Constraint("Vertical", 2, 2, 3, 2),
    Sketcher.Constraint("Equal", 2, 5),
    Sketcher.Constraint("DistanceY", 1, 1, 1, 2, 2.0),
    Sketcher.Constraint("DistanceX", 2, 1, 2, 2, 1.5),
    Sketcher.Constraint("DistanceX", 2, 2, -1, 1, 10.0),
    Sketcher.Constraint("DistanceY", -1, 1, 3, 2, 31.0),
    Sketcher.Constraint("DistanceY", -1, 1, 0, 2, 9.25),
])
sketch12.setExpression("Constraints[13]", "Params.sketch12_height")
sketch12.setExpression("Constraints[14]", "Params.sketch12_width")
pad6 = body.newObject("PartDesign::Pad", "Pad005")
pad6.Profile = sketch12
pad6.setExpression("Length", "Params.pad6_length")

doc.recompute()
